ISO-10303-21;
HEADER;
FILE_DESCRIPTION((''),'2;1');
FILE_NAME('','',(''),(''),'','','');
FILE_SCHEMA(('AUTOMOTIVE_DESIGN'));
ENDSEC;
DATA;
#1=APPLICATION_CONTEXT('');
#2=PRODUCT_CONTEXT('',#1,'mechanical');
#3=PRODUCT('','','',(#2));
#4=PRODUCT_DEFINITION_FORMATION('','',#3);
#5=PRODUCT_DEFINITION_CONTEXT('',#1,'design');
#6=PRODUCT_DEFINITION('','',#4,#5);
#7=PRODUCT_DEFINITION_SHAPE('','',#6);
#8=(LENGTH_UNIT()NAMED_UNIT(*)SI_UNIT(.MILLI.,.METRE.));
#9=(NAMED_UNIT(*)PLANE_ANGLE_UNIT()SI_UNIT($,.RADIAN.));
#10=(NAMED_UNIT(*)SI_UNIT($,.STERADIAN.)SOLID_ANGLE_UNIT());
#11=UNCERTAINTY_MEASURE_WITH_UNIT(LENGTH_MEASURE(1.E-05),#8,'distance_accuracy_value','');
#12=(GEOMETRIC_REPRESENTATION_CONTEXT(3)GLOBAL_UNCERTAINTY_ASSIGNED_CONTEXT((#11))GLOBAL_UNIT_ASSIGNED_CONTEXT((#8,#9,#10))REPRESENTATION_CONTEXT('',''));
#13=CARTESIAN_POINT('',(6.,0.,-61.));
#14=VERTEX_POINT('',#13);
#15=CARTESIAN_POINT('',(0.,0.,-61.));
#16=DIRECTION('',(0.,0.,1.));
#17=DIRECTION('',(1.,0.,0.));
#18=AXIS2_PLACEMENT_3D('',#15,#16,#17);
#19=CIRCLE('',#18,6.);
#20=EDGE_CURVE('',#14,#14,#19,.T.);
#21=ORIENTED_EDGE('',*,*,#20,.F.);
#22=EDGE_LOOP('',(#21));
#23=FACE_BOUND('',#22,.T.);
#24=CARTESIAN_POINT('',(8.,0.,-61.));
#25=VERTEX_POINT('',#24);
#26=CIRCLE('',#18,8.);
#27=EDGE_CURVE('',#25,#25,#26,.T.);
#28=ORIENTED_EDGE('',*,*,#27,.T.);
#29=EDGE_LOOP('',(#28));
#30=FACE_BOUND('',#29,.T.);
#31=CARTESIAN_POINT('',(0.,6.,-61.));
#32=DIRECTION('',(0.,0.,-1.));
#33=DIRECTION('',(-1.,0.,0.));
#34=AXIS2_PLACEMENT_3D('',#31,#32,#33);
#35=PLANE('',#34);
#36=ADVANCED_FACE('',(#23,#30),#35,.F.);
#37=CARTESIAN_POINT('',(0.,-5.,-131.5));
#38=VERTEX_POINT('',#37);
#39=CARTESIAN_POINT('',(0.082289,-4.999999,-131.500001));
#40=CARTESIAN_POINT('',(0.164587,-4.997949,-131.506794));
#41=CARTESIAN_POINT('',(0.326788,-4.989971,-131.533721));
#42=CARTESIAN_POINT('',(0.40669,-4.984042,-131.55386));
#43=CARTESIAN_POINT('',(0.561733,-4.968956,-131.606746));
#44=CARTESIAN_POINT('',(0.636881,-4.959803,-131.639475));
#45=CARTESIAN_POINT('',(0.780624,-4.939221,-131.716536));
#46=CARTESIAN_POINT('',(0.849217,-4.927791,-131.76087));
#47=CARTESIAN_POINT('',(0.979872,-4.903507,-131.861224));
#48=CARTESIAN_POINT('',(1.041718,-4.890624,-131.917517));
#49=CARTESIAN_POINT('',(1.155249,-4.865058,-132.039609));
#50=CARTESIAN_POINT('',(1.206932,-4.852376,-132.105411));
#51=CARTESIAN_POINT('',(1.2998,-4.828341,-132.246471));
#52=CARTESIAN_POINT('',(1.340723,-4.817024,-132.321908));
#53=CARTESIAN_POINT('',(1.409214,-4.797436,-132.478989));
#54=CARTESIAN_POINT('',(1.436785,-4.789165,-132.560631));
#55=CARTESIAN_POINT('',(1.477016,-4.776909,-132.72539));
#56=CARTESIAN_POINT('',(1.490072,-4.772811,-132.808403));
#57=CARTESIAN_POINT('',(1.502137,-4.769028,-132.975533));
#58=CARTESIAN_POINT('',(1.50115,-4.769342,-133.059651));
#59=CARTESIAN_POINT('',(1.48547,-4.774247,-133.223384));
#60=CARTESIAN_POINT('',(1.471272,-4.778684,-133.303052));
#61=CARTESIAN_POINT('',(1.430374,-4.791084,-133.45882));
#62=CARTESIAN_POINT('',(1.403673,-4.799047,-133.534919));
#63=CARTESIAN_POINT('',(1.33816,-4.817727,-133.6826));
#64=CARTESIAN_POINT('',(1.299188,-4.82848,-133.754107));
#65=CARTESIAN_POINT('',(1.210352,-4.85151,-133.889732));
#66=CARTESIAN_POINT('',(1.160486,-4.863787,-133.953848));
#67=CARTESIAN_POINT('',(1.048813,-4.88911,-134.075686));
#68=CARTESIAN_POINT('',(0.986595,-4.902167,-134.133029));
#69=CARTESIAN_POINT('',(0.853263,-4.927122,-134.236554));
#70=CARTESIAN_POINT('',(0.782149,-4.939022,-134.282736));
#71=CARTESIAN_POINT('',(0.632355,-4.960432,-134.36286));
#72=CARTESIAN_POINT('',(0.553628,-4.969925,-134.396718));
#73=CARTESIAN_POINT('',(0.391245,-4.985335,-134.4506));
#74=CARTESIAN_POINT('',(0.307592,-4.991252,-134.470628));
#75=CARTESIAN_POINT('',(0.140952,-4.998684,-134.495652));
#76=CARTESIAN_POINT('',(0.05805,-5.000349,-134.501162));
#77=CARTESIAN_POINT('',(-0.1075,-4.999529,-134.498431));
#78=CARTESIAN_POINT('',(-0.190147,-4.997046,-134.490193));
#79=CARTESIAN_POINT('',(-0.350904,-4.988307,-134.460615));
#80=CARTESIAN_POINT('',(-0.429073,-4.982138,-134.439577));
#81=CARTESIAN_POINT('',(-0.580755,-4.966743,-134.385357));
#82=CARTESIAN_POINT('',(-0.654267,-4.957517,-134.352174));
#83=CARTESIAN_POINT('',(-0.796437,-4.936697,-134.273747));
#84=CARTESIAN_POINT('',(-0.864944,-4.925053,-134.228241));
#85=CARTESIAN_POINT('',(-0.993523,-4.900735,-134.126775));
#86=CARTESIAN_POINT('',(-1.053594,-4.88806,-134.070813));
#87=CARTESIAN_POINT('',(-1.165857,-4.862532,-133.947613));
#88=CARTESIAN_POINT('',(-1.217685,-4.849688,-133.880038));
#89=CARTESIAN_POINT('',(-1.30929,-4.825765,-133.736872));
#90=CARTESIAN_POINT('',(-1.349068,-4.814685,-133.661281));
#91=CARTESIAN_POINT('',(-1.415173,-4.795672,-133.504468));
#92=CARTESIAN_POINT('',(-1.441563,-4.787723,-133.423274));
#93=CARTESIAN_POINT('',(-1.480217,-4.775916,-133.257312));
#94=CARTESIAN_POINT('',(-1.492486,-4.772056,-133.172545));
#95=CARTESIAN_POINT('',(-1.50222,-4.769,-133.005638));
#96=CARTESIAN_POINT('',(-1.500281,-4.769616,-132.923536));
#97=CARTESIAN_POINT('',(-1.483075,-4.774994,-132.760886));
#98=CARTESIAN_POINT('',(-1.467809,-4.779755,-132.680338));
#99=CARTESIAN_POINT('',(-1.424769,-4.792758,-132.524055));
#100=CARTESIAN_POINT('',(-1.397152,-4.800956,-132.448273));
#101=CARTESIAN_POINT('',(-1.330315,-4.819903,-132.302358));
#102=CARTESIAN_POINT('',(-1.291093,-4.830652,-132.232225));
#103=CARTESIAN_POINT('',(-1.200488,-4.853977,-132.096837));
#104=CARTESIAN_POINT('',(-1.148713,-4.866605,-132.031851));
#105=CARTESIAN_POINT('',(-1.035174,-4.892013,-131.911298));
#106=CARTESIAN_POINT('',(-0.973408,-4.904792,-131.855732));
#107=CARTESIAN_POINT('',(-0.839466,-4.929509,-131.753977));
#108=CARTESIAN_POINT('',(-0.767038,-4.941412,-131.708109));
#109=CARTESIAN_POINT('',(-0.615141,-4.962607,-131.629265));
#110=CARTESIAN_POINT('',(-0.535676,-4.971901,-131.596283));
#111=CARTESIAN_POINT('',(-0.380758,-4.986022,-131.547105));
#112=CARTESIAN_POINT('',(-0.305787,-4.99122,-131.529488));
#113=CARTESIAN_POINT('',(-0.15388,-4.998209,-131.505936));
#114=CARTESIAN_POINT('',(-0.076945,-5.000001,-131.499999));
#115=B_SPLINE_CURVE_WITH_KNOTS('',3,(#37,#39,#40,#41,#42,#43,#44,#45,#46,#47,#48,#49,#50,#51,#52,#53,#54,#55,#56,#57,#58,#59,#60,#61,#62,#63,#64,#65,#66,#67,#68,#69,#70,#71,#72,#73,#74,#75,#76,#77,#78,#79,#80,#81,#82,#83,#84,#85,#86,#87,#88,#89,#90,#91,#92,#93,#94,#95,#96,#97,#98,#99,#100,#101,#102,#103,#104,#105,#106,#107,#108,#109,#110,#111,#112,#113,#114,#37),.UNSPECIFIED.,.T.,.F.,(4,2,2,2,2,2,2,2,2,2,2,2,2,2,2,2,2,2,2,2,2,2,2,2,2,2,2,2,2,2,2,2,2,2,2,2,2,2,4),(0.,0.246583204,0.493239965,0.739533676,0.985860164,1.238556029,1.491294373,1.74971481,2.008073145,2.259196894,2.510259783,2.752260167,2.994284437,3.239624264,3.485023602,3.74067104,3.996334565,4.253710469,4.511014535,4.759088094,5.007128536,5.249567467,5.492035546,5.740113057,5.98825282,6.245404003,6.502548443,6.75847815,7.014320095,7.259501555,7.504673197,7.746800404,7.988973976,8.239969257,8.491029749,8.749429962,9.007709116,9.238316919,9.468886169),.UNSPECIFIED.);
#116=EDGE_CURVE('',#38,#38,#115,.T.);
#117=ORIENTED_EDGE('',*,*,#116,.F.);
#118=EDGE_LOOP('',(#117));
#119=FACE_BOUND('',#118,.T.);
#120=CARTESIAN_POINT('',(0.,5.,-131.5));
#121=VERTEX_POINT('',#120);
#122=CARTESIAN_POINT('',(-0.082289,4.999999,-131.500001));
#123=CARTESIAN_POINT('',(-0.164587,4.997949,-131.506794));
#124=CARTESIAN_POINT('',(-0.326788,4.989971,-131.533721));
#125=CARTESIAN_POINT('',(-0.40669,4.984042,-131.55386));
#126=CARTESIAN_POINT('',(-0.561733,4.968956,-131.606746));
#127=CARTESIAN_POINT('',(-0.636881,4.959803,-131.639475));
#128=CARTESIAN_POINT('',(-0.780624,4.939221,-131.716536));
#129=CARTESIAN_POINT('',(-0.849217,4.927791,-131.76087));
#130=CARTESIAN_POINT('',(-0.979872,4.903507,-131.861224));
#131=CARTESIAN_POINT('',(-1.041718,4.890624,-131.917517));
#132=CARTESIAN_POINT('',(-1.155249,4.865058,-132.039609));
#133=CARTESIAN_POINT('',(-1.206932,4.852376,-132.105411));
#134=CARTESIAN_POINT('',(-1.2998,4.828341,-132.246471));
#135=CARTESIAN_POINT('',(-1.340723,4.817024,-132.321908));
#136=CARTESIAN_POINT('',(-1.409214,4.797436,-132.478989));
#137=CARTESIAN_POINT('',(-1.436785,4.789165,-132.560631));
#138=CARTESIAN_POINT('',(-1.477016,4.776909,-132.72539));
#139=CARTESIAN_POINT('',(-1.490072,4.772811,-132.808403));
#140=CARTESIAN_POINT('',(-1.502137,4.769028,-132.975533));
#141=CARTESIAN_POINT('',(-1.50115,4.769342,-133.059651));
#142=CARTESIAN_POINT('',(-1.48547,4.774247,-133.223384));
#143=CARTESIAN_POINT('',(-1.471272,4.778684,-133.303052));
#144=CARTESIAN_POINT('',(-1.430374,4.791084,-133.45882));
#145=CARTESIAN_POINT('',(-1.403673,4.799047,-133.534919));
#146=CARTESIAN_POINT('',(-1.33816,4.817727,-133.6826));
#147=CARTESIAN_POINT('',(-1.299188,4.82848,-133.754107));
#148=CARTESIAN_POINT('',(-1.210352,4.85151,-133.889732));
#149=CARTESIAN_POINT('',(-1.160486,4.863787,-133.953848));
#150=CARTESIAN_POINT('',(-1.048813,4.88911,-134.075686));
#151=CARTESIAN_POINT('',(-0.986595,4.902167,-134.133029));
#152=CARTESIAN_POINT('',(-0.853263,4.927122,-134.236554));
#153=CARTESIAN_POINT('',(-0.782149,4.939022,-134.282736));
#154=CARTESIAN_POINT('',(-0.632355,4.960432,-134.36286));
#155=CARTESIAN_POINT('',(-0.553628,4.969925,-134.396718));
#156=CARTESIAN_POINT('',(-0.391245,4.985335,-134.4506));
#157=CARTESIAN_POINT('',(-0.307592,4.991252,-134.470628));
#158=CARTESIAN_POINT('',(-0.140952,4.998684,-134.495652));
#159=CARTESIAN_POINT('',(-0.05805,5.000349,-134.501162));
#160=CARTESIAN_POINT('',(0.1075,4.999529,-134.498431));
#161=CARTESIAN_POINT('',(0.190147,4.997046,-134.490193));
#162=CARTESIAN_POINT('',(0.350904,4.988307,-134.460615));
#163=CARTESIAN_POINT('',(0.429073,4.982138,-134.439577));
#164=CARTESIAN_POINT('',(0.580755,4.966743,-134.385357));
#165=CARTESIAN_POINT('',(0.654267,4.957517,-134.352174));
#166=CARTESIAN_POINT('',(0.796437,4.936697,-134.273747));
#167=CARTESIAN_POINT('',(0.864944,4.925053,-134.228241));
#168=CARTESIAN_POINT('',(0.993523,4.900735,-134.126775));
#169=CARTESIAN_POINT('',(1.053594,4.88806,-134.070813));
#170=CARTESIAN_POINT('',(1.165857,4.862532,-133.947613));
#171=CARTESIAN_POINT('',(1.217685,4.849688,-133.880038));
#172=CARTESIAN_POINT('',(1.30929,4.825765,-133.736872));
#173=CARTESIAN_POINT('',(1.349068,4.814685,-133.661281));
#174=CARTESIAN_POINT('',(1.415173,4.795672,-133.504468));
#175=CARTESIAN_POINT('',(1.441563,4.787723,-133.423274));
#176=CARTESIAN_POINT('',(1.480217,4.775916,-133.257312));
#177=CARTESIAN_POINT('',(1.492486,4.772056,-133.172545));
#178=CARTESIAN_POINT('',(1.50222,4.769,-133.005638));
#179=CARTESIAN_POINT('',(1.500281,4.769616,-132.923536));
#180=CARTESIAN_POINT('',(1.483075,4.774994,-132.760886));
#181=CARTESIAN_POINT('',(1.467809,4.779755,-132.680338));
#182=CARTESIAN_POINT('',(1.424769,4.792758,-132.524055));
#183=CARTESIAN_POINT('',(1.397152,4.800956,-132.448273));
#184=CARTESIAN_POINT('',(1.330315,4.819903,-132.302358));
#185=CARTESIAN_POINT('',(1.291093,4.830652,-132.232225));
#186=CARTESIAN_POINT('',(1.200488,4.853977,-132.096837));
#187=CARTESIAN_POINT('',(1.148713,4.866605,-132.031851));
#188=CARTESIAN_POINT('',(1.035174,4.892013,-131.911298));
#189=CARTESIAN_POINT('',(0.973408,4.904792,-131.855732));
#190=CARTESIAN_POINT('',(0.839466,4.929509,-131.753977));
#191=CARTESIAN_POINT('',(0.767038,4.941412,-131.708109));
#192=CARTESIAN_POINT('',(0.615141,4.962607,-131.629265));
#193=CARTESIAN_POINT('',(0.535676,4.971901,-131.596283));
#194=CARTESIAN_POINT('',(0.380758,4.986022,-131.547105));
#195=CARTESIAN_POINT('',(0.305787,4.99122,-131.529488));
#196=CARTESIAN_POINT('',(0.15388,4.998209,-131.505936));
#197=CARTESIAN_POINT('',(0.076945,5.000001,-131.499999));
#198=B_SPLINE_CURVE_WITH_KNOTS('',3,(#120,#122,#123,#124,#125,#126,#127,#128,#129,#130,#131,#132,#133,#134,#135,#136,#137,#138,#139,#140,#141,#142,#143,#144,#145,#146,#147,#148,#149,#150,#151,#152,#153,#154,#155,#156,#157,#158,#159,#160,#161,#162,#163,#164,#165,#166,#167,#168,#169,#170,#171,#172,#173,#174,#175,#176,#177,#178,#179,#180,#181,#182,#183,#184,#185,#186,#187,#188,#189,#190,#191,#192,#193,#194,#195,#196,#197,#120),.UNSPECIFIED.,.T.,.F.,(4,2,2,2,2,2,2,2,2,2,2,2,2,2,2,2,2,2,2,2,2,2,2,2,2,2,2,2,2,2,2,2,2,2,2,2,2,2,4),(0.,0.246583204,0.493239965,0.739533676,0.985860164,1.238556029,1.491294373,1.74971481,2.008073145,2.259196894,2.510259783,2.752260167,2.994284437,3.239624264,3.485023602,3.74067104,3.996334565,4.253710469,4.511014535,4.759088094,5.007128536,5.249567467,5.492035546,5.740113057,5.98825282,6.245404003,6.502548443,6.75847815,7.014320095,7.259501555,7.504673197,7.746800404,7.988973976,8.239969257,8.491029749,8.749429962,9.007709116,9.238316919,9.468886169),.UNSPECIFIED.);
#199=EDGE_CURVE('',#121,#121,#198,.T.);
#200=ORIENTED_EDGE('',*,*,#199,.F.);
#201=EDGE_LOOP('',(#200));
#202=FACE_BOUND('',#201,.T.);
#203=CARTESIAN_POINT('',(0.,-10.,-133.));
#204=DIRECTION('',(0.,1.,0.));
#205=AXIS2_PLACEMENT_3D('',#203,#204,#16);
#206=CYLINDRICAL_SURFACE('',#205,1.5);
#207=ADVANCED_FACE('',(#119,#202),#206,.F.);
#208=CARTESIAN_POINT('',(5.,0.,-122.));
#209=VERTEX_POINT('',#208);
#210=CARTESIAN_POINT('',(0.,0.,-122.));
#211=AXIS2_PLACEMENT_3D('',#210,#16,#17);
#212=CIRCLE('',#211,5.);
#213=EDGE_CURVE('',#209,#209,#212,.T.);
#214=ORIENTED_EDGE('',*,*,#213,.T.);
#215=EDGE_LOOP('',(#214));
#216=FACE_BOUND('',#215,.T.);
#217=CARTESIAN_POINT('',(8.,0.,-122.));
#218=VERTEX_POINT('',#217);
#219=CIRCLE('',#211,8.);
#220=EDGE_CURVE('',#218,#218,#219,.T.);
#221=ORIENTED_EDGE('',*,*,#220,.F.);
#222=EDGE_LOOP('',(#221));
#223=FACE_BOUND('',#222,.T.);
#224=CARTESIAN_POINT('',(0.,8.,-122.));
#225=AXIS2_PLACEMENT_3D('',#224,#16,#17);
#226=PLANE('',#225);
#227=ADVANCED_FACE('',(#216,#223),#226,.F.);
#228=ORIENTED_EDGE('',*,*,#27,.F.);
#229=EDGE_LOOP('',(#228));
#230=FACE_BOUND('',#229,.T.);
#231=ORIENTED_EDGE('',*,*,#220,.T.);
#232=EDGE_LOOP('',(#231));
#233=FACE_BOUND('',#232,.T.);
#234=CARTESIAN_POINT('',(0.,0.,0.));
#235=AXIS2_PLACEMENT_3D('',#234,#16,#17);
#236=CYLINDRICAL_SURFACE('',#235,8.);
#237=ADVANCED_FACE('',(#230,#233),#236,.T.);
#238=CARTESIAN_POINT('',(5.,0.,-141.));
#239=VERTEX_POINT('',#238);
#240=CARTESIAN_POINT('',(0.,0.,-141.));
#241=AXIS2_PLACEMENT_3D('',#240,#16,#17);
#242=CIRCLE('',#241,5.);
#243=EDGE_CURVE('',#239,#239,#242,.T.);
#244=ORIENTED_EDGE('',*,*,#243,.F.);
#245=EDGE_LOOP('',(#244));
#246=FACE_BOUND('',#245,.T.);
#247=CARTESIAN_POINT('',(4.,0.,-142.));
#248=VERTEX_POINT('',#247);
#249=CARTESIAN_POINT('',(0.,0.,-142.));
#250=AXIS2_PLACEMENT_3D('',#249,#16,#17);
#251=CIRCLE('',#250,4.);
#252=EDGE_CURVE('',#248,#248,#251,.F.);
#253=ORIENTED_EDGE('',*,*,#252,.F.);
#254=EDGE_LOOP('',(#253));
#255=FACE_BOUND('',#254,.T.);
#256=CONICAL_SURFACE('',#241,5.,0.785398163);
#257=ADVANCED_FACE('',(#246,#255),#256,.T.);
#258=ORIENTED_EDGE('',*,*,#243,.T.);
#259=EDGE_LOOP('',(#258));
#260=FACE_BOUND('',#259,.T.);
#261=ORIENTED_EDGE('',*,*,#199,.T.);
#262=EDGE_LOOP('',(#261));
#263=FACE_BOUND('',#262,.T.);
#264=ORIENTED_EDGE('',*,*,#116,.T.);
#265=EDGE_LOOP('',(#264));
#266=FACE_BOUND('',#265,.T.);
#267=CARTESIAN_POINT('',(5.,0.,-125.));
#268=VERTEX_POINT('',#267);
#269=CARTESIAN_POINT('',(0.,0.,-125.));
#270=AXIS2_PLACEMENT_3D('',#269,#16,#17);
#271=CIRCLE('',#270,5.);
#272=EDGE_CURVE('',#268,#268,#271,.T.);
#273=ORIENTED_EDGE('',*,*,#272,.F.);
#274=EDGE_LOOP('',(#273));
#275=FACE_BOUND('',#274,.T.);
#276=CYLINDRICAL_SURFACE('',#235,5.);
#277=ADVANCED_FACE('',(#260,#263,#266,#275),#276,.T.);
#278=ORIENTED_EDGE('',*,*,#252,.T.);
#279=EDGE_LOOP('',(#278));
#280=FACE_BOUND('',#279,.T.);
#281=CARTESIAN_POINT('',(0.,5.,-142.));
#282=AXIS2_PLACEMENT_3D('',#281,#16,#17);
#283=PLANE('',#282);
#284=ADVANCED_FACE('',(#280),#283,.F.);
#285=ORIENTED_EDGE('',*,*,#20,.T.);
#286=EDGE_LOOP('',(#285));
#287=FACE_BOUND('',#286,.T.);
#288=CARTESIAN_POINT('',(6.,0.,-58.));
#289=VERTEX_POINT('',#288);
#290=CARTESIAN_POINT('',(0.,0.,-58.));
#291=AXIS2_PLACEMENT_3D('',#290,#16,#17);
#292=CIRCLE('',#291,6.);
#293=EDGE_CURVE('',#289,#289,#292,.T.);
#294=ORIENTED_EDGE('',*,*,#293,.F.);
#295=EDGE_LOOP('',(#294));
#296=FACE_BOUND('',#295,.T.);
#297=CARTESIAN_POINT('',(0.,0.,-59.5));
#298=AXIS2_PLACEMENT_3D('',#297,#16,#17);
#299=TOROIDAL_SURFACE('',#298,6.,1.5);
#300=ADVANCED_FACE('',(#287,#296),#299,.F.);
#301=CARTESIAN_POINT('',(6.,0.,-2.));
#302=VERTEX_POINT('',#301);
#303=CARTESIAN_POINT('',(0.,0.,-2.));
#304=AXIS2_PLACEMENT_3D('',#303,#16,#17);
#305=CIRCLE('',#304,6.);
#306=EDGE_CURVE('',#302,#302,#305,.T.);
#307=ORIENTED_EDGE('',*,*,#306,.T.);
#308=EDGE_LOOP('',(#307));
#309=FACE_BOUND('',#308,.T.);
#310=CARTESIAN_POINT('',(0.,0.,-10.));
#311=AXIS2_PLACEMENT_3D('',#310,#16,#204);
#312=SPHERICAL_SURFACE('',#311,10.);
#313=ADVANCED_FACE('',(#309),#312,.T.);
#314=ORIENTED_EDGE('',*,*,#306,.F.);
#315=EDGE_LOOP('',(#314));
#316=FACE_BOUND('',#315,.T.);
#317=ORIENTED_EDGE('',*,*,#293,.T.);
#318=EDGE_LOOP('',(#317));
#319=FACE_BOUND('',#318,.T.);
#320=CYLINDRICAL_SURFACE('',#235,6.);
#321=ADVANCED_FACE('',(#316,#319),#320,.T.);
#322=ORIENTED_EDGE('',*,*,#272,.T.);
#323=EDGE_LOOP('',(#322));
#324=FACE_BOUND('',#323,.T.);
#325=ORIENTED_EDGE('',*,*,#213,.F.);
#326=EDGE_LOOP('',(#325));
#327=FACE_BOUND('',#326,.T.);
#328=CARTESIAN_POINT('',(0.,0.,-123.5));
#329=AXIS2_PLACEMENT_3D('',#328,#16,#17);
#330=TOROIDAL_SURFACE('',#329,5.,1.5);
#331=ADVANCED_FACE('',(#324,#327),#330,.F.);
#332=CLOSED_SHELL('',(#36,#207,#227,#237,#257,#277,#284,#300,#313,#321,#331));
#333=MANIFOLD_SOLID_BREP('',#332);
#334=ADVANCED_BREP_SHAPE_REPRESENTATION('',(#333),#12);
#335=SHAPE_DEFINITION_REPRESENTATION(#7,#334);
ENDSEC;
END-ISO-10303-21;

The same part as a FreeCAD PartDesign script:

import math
import FreeCAD as App
import Part
import Sketcher
from FreeCAD import Vector
Q = App.Units.Quantity


def edges_at(feature, points):
    """Names of the edges that pass closest to the given points."""
    edges = feature.Shape.Edges
    near = lambda p: min(range(len(edges)), key=lambda i: edges[i].distToShape(Part.Vertex(*p))[0])
    return sorted({f"Edge{near(p) + 1}" for p in points})

doc = App.newDocument("Part")
body = doc.addObject("PartDesign::Body", "Body")

# Sketch on YZ plane
sketch1 = body.newObject("Sketcher::SketchObject", "Sketch")
sketch1.AttachmentSupport = (doc.getObject("YZ_Plane"), [""])
sketch1.MapMode = "FlatFace"
sketch1.addGeometry(Part.LineSegment(Vector(6, -58, 0), Vector(6, -2, 0)), False)
sketch1.addGeometry(Part.ArcOfCircle(Part.Circle(Vector(0, -10, 0), Vector(0, 0, 1), 10), math.radians(53), math.radians(90)), False)
sketch1.addGeometry(Part.LineSegment(Vector(0, 0, 0), Vector(0, -142, 0)), False)
sketch1.addGeometry(Part.LineSegment(Vector(0, -142, 0), Vector(5, -142, 0)), False)
sketch1.addGeometry(Part.LineSegment(Vector(5, -142, 0), Vector(5, -125, 0)), False)
sketch1.addGeometry(Part.ArcOfCircle(Part.Circle(Vector(5, -123.5, 0), Vector(0, 0, 1), 1.5), math.radians(90), math.radians(270)), False)
sketch1.addGeometry(Part.LineSegment(Vector(5, -122, 0), Vector(8, -122, 0)), False)
sketch1.addGeometry(Part.LineSegment(Vector(8, -122, 0), Vector(8, -61, 0)), False)
sketch1.addGeometry(Part.LineSegment(Vector(8, -61, 0), Vector(6, -61, 0)), False)
sketch1.addGeometry(Part.ArcOfCircle(Part.Circle(Vector(6, -59.5, 0), Vector(0, 0, 1), 1.5), math.radians(90), math.radians(270)), False)
sketch1.addConstraint(Sketcher.Constraint("Coincident", 0, 2, 1, 1))
sketch1.addConstraint(Sketcher.Constraint("Coincident", 1, 2, 2, 1))
sketch1.addConstraint(Sketcher.Constraint("Coincident", 2, 2, 3, 1))
sketch1.addConstraint(Sketcher.Constraint("Coincident", 3, 2, 4, 1))
sketch1.addConstraint(Sketcher.Constraint("Coincident", 4, 2, 5, 2))
sketch1.addConstraint(Sketcher.Constraint("Tangent", 5, 1, 6, 1))
sketch1.addConstraint(Sketcher.Constraint("Coincident", 6, 2, 7, 1))
sketch1.addConstraint(Sketcher.Constraint("Coincident", 7, 2, 8, 1))
sketch1.addConstraint(Sketcher.Constraint("Tangent", 8, 2, 9, 2))
sketch1.addConstraint(Sketcher.Constraint("Coincident", 9, 1, 0, 1))
sketch1.addConstraint(Sketcher.Constraint("Vertical", 0))
sketch1.addConstraint(Sketcher.Constraint("Vertical", 2))
sketch1.addConstraint(Sketcher.Constraint("Horizontal", 3))
sketch1.addConstraint(Sketcher.Constraint("Vertical", 4))
sketch1.addConstraint(Sketcher.Constraint("Horizontal", 6))
sketch1.addConstraint(Sketcher.Constraint("Vertical", 7))
sketch1.addConstraint(Sketcher.Constraint("Horizontal", 8))
sketch1.addConstraint(Sketcher.Constraint("Coincident", 1, 2, -1, 1))
sketch1.addConstraint(Sketcher.Constraint("Equal", 5, 9))
sketch1.addConstraint(Sketcher.Constraint("PointOnObject", 1, 3, -2))
sketch1.addConstraint(Sketcher.Constraint("Vertical", 9, 3, 0, 2))
sketch1.addConstraint(Sketcher.Constraint("Vertical", 5, 3, 3, 2))
sketch1.addConstraint(Sketcher.Constraint("Radius", 1, Q("10 mm")))
sketch1.addConstraint(Sketcher.Constraint("Radius", 5, Q("1.5 mm")))
sketch1.addConstraint(Sketcher.Constraint("DistanceX", 3, 1, 3, 2, Q("5 mm")))
sketch1.addConstraint(Sketcher.Constraint("DistanceX", 6, 1, 6, 2, Q("3 mm")))
sketch1.addConstraint(Sketcher.Constraint("DistanceX", 8, 2, 8, 1, Q("2 mm")))
sketch1.addConstraint(Sketcher.Constraint("DistanceY", 0, 1, 0, 2, Q("56 mm")))
sketch1.addConstraint(Sketcher.Constraint("DistanceY", 2, 2, 2, 1, Q("142 mm")))
sketch1.addConstraint(Sketcher.Constraint("DistanceY", 4, 1, 4, 2, Q("17 mm")))
revolution = body.newObject("PartDesign::Revolution", "Revolution")
revolution.Profile = sketch1
revolution.ReferenceAxis = (sketch1, ["V_Axis"])
revolution.Angle = 360

# Sketch on XZ plane
sketch2 = body.newObject("Sketcher::SketchObject", "Sketch001")
sketch2.AttachmentSupport = (doc.getObject("XZ_Plane"), [""])
sketch2.MapMode = "FlatFace"
sketch2.addGeometry(Part.Circle(Vector(0, -133, 0), Vector(0, 0, 1), 1.5), False)
sketch2.addConstraint(Sketcher.Constraint("PointOnObject", 0, 3, -2))
sketch2.addConstraint(Sketcher.Constraint("Diameter", 0, Q("3 mm")))
sketch2.addConstraint(Sketcher.Constraint("DistanceY", 0, 3, -1, 1, Q("133 mm")))
pocket1 = body.newObject("PartDesign::Pocket", "Pocket")
pocket1.Profile = sketch2
pocket1.Length = 20
pocket1.Midplane = True
doc.recompute()

chamfer = body.newObject("PartDesign::Chamfer", "Chamfer")
chamfer.Base = (pocket1, edges_at(pocket1, [(-5, 0, -142)]))
chamfer.Size = 1

doc.recompute()
